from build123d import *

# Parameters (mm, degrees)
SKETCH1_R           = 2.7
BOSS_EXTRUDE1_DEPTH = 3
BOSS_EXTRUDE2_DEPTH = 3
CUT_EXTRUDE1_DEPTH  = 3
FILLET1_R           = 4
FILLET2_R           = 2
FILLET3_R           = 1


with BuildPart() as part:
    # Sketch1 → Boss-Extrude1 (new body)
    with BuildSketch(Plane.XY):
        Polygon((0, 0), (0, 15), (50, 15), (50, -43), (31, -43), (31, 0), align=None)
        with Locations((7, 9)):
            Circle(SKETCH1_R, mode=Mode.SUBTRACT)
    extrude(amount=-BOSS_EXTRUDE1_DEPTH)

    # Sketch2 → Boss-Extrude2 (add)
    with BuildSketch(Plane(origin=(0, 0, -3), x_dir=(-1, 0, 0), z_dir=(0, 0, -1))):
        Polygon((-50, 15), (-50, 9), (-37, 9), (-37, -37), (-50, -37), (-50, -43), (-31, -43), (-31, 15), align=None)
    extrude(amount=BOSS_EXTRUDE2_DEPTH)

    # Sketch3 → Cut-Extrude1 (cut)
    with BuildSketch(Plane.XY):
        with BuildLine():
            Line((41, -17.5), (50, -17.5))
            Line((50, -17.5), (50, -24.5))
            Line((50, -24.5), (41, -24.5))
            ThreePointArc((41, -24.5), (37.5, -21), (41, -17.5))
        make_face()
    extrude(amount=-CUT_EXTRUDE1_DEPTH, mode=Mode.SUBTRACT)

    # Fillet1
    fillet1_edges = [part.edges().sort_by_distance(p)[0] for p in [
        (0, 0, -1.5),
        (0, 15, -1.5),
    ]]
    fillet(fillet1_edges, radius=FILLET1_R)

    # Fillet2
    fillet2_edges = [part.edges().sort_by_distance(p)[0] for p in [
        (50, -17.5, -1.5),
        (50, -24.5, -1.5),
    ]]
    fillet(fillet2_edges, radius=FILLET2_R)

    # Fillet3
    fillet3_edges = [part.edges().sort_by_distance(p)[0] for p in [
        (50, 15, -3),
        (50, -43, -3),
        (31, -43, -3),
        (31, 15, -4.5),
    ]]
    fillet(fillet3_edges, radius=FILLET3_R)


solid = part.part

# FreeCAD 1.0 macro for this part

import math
import FreeCAD as App
import Part
import Sketcher
Q = App.Units.Quantity


def edges_at(feature, points):
    """Names of the edges that pass closest to the given points."""
    edges = feature.Shape.Edges
    near = lambda p: min(range(len(edges)), key=lambda i: edges[i].distToShape(Part.Vertex(*p))[0])
    return sorted({f"Edge{near(p) + 1}" for p in points})

doc = App.newDocument("Part")
body = doc.addObject("PartDesign::Body", "Body")

sketch1 = body.newObject("Sketcher::SketchObject", "Sketch")
sketch1.AttachmentSupport = (doc.getObject("XY_Plane"), [""])
sketch1.MapMode = "FlatFace"
sketch1.addGeometry(Part.LineSegment(App.Vector(0, 15, 0), App.Vector(0, 0, 0)), False)
sketch1.addGeometry(Part.LineSegment(App.Vector(0, 0, 0), App.Vector(31, 0, 0)), False)
sketch1.addGeometry(Part.LineSegment(App.Vector(31, 0, 0), App.Vector(31, -43, 0)), False)
sketch1.addGeometry(Part.LineSegment(App.Vector(31, -43, 0), App.Vector(50, -43, 0)), False)
sketch1.addGeometry(Part.LineSegment(App.Vector(50, -43, 0), App.Vector(50, 15, 0)), False)
sketch1.addGeometry(Part.LineSegment(App.Vector(50, 15, 0), App.Vector(0, 15, 0)), False)
sketch1.addGeometry(Part.Circle(App.Vector(7, 9, 0), App.Vector(0, 0, 1), 2.7), False)
sketch1.addConstraint(Sketcher.Constraint("Coincident", 0, 2, 1, 1))
sketch1.addConstraint(Sketcher.Constraint("Coincident", 1, 2, 2, 1))
sketch1.addConstraint(Sketcher.Constraint("Coincident", 2, 2, 3, 1))
sketch1.addConstraint(Sketcher.Constraint("Coincident", 3, 2, 4, 1))
sketch1.addConstraint(Sketcher.Constraint("Coincident", 4, 2, 5, 1))
sketch1.addConstraint(Sketcher.Constraint("Coincident", 5, 2, 0, 1))
sketch1.addConstraint(Sketcher.Constraint("Vertical", 0))
sketch1.addConstraint(Sketcher.Constraint("Horizontal", 1))
sketch1.addConstraint(Sketcher.Constraint("Vertical", 2))
sketch1.addConstraint(Sketcher.Constraint("Horizontal", 3))
sketch1.addConstraint(Sketcher.Constraint("Vertical", 4))
sketch1.addConstraint(Sketcher.Constraint("Horizontal", 5))
sketch1.addConstraint(Sketcher.Constraint("Coincident", 0, 2, -1, 1))
sketch1.addConstraint(Sketcher.Constraint("Diameter", 6, Q("5.4 mm")))
sketch1.addConstraint(Sketcher.Constraint("DistanceX", 1, 1, 1, 2, Q("31 mm")))
sketch1.addConstraint(Sketcher.Constraint("DistanceX", 3, 1, 3, 2, Q("19 mm")))
sketch1.addConstraint(Sketcher.Constraint("DistanceY", 0, 2, 0, 1, Q("15 mm")))
sketch1.addConstraint(Sketcher.Constraint("DistanceY", 2, 2, 2, 1, Q("43 mm")))
sketch1.addConstraint(Sketcher.Constraint("DistanceX", -1, 1, 6, 3, Q("7 mm")))
sketch1.addConstraint(Sketcher.Constraint("DistanceY", -1, 1, 6, 3, Q("9 mm")))
pad1 = body.newObject("PartDesign::Pad", "Pad")
pad1.Profile = sketch1
pad1.Length = 3
pad1.Reversed = True

sketch2 = body.newObject("Sketcher::SketchObject", "Sketch001")
sketch2.AttachmentSupport = (doc.getObject("XY_Plane"), [""])
sketch2.MapMode = "FlatFace"
sketch2.AttachmentOffset = App.Placement(App.Vector(0, 0, -3), App.Rotation())
sketch2.addGeometry(Part.LineSegment(App.Vector(50, 15, 0), App.Vector(50, 9, 0)), False)
sketch2.addGeometry(Part.LineSegment(App.Vector(50, 9, 0), App.Vector(37, 9, 0)), False)
sketch2.addGeometry(Part.LineSegment(App.Vector(37, 9, 0), App.Vector(37, -37, 0)), False)
sketch2.addGeometry(Part.LineSegment(App.Vector(37, -37, 0), App.Vector(50, -37, 0)), False)
sketch2.addGeometry(Part.LineSegment(App.Vector(50, -37, 0), App.Vector(50, -43, 0)), False)
sketch2.addGeometry(Part.LineSegment(App.Vector(50, -43, 0), App.Vector(31, -43, 0)), False)
sketch2.addGeometry(Part.LineSegment(App.Vector(31, -43, 0), App.Vector(31, 15, 0)), False)
sketch2.addGeometry(Part.LineSegment(App.Vector(31, 15, 0), App.Vector(50, 15, 0)), False)
sketch2.addConstraint(Sketcher.Constraint("Coincident", 0, 2, 1, 1))
sketch2.addConstraint(Sketcher.Constraint("Coincident", 1, 2, 2, 1))
sketch2.addConstraint(Sketcher.Constraint("Coincident", 2, 2, 3, 1))
sketch2.addConstraint(Sketcher.Constraint("Coincident", 3, 2, 4, 1))
sketch2.addConstraint(Sketcher.Constraint("Coincident", 4, 2, 5, 1))
sketch2.addConstraint(Sketcher.Constraint("Coincident", 5, 2, 6, 1))
sketch2.addConstraint(Sketcher.Constraint("Coincident", 6, 2, 7, 1))
sketch2.addConstraint(Sketcher.Constraint("Coincident", 7, 2, 0, 1))
sketch2.addConstraint(Sketcher.Constraint("Vertical", 0))
sketch2.addConstraint(Sketcher.Constraint("Horizontal", 1))
sketch2.addConstraint(Sketcher.Constraint("Vertical", 2))
sketch2.addConstraint(Sketcher.Constraint("Horizontal", 3))
sketch2.addConstraint(Sketcher.Constraint("Vertical", 4))
sketch2.addConstraint(Sketcher.Constraint("Horizontal", 5))
sketch2.addConstraint(Sketcher.Constraint("Vertical", 6))
sketch2.addConstraint(Sketcher.Constraint("Horizontal", 7))
sketch2.addConstraint(Sketcher.Constraint("Vertical", 0, 2, 3, 2))
sketch2.addConstraint(Sketcher.Constraint("Equal", 0, 4))
sketch2.addConstraint(Sketcher.Constraint("DistanceX", 1, 2, 1, 1, Q("13 mm")))
sketch2.addConstraint(Sketcher.Constraint("DistanceX", 5, 2, 5, 1, Q("19 mm")))
sketch2.addConstraint(Sketcher.Constraint("DistanceY", 0, 2, 0, 1, Q("6 mm")))
sketch2.addConstraint(Sketcher.Constraint("DistanceY", 2, 2, 2, 1, Q("46 mm")))
sketch2.addConstraint(Sketcher.Constraint("DistanceX", -1, 1, 0, 2, Q("50 mm")))
sketch2.addConstraint(Sketcher.Constraint("DistanceY", -1, 1, 0, 2, Q("9 mm")))
pad2 = body.newObject("PartDesign::Pad", "Pad001")
pad2.Profile = sketch2
pad2.Length = 3
pad2.Reversed = True

sketch3 = body.newObject("Sketcher::SketchObject", "Sketch002")
sketch3.AttachmentSupport = (doc.getObject("XY_Plane"), [""])
sketch3.MapMode = "FlatFace"
sketch3.addGeometry(Part.LineSegment(App.Vector(50, -17.5, 0), App.Vector(41, -17.5, 0)), False)
sketch3.addGeometry(Part.ArcOfCircle(Part.Circle(App.Vector(41, -21, 0), App.Vector(0, 0, 1), 3.5), math.radians(90), math.radians(270)), False)
sketch3.addGeometry(Part.LineSegment(App.Vector(41, -24.5, 0), App.Vector(50, -24.5, 0)), False)
sketch3.addGeometry(Part.LineSegment(App.Vector(50, -24.5, 0), App.Vector(50, -17.5, 0)), False)
sketch3.addConstraint(Sketcher.Constraint("Tangent", 0, 2, 1, 1))
sketch3.addConstraint(Sketcher.Constraint("Tangent", 1, 2, 2, 1))
sketch3.addConstraint(Sketcher.Constraint("Coincident", 2, 2, 3, 1))
sketch3.addConstraint(Sketcher.Constraint("Coincident", 3, 2, 0, 1))
sketch3.addConstraint(Sketcher.Constraint("Horizontal", 0))
sketch3.addConstraint(Sketcher.Constraint("Horizontal", 2))
sketch3.addConstraint(Sketcher.Constraint("Vertical", 3))
sketch3.addConstraint(Sketcher.Constraint("Radius", 1, Q("3.5 mm")))
sketch3.addConstraint(Sketcher.Constraint("DistanceX", 0, 2, 0, 1, Q("9 mm")))
sketch3.addConstraint(Sketcher.Constraint("DistanceX", -1, 1, 1, 3, Q("41 mm")))
sketch3.addConstraint(Sketcher.Constraint("DistanceY", 1, 3, -1, 1, Q("21 mm")))
pocket1 = body.newObject("PartDesign::Pocket", "Pocket")
pocket1.Profile = sketch3
pocket1.Length = 3
doc.recompute()

fillet = body.newObject("PartDesign::Fillet", "Fillet")
fillet.Base = (pocket1, edges_at(pocket1, [(0, 0, -1.5), (0, 15, -1.5)]))
fillet.Radius = 4
doc.recompute()

fillet2 = body.newObject("PartDesign::Fillet", "Fillet001")
fillet2.Base = (fillet, edges_at(fillet, [(50, -17.5, -1.5), (50, -24.5, -1.5)]))
fillet2.Radius = 2
doc.recompute()

fillet3 = body.newObject("PartDesign::Fillet", "Fillet002")
fillet3.Base = (fillet2, edges_at(fillet2, [
    (50, 15, -3),
    (50, -43, -3),
    (31, -43, -3),
    (31, 15, -4.5),
]))
fillet3.Radius = 1

doc.recompute()
